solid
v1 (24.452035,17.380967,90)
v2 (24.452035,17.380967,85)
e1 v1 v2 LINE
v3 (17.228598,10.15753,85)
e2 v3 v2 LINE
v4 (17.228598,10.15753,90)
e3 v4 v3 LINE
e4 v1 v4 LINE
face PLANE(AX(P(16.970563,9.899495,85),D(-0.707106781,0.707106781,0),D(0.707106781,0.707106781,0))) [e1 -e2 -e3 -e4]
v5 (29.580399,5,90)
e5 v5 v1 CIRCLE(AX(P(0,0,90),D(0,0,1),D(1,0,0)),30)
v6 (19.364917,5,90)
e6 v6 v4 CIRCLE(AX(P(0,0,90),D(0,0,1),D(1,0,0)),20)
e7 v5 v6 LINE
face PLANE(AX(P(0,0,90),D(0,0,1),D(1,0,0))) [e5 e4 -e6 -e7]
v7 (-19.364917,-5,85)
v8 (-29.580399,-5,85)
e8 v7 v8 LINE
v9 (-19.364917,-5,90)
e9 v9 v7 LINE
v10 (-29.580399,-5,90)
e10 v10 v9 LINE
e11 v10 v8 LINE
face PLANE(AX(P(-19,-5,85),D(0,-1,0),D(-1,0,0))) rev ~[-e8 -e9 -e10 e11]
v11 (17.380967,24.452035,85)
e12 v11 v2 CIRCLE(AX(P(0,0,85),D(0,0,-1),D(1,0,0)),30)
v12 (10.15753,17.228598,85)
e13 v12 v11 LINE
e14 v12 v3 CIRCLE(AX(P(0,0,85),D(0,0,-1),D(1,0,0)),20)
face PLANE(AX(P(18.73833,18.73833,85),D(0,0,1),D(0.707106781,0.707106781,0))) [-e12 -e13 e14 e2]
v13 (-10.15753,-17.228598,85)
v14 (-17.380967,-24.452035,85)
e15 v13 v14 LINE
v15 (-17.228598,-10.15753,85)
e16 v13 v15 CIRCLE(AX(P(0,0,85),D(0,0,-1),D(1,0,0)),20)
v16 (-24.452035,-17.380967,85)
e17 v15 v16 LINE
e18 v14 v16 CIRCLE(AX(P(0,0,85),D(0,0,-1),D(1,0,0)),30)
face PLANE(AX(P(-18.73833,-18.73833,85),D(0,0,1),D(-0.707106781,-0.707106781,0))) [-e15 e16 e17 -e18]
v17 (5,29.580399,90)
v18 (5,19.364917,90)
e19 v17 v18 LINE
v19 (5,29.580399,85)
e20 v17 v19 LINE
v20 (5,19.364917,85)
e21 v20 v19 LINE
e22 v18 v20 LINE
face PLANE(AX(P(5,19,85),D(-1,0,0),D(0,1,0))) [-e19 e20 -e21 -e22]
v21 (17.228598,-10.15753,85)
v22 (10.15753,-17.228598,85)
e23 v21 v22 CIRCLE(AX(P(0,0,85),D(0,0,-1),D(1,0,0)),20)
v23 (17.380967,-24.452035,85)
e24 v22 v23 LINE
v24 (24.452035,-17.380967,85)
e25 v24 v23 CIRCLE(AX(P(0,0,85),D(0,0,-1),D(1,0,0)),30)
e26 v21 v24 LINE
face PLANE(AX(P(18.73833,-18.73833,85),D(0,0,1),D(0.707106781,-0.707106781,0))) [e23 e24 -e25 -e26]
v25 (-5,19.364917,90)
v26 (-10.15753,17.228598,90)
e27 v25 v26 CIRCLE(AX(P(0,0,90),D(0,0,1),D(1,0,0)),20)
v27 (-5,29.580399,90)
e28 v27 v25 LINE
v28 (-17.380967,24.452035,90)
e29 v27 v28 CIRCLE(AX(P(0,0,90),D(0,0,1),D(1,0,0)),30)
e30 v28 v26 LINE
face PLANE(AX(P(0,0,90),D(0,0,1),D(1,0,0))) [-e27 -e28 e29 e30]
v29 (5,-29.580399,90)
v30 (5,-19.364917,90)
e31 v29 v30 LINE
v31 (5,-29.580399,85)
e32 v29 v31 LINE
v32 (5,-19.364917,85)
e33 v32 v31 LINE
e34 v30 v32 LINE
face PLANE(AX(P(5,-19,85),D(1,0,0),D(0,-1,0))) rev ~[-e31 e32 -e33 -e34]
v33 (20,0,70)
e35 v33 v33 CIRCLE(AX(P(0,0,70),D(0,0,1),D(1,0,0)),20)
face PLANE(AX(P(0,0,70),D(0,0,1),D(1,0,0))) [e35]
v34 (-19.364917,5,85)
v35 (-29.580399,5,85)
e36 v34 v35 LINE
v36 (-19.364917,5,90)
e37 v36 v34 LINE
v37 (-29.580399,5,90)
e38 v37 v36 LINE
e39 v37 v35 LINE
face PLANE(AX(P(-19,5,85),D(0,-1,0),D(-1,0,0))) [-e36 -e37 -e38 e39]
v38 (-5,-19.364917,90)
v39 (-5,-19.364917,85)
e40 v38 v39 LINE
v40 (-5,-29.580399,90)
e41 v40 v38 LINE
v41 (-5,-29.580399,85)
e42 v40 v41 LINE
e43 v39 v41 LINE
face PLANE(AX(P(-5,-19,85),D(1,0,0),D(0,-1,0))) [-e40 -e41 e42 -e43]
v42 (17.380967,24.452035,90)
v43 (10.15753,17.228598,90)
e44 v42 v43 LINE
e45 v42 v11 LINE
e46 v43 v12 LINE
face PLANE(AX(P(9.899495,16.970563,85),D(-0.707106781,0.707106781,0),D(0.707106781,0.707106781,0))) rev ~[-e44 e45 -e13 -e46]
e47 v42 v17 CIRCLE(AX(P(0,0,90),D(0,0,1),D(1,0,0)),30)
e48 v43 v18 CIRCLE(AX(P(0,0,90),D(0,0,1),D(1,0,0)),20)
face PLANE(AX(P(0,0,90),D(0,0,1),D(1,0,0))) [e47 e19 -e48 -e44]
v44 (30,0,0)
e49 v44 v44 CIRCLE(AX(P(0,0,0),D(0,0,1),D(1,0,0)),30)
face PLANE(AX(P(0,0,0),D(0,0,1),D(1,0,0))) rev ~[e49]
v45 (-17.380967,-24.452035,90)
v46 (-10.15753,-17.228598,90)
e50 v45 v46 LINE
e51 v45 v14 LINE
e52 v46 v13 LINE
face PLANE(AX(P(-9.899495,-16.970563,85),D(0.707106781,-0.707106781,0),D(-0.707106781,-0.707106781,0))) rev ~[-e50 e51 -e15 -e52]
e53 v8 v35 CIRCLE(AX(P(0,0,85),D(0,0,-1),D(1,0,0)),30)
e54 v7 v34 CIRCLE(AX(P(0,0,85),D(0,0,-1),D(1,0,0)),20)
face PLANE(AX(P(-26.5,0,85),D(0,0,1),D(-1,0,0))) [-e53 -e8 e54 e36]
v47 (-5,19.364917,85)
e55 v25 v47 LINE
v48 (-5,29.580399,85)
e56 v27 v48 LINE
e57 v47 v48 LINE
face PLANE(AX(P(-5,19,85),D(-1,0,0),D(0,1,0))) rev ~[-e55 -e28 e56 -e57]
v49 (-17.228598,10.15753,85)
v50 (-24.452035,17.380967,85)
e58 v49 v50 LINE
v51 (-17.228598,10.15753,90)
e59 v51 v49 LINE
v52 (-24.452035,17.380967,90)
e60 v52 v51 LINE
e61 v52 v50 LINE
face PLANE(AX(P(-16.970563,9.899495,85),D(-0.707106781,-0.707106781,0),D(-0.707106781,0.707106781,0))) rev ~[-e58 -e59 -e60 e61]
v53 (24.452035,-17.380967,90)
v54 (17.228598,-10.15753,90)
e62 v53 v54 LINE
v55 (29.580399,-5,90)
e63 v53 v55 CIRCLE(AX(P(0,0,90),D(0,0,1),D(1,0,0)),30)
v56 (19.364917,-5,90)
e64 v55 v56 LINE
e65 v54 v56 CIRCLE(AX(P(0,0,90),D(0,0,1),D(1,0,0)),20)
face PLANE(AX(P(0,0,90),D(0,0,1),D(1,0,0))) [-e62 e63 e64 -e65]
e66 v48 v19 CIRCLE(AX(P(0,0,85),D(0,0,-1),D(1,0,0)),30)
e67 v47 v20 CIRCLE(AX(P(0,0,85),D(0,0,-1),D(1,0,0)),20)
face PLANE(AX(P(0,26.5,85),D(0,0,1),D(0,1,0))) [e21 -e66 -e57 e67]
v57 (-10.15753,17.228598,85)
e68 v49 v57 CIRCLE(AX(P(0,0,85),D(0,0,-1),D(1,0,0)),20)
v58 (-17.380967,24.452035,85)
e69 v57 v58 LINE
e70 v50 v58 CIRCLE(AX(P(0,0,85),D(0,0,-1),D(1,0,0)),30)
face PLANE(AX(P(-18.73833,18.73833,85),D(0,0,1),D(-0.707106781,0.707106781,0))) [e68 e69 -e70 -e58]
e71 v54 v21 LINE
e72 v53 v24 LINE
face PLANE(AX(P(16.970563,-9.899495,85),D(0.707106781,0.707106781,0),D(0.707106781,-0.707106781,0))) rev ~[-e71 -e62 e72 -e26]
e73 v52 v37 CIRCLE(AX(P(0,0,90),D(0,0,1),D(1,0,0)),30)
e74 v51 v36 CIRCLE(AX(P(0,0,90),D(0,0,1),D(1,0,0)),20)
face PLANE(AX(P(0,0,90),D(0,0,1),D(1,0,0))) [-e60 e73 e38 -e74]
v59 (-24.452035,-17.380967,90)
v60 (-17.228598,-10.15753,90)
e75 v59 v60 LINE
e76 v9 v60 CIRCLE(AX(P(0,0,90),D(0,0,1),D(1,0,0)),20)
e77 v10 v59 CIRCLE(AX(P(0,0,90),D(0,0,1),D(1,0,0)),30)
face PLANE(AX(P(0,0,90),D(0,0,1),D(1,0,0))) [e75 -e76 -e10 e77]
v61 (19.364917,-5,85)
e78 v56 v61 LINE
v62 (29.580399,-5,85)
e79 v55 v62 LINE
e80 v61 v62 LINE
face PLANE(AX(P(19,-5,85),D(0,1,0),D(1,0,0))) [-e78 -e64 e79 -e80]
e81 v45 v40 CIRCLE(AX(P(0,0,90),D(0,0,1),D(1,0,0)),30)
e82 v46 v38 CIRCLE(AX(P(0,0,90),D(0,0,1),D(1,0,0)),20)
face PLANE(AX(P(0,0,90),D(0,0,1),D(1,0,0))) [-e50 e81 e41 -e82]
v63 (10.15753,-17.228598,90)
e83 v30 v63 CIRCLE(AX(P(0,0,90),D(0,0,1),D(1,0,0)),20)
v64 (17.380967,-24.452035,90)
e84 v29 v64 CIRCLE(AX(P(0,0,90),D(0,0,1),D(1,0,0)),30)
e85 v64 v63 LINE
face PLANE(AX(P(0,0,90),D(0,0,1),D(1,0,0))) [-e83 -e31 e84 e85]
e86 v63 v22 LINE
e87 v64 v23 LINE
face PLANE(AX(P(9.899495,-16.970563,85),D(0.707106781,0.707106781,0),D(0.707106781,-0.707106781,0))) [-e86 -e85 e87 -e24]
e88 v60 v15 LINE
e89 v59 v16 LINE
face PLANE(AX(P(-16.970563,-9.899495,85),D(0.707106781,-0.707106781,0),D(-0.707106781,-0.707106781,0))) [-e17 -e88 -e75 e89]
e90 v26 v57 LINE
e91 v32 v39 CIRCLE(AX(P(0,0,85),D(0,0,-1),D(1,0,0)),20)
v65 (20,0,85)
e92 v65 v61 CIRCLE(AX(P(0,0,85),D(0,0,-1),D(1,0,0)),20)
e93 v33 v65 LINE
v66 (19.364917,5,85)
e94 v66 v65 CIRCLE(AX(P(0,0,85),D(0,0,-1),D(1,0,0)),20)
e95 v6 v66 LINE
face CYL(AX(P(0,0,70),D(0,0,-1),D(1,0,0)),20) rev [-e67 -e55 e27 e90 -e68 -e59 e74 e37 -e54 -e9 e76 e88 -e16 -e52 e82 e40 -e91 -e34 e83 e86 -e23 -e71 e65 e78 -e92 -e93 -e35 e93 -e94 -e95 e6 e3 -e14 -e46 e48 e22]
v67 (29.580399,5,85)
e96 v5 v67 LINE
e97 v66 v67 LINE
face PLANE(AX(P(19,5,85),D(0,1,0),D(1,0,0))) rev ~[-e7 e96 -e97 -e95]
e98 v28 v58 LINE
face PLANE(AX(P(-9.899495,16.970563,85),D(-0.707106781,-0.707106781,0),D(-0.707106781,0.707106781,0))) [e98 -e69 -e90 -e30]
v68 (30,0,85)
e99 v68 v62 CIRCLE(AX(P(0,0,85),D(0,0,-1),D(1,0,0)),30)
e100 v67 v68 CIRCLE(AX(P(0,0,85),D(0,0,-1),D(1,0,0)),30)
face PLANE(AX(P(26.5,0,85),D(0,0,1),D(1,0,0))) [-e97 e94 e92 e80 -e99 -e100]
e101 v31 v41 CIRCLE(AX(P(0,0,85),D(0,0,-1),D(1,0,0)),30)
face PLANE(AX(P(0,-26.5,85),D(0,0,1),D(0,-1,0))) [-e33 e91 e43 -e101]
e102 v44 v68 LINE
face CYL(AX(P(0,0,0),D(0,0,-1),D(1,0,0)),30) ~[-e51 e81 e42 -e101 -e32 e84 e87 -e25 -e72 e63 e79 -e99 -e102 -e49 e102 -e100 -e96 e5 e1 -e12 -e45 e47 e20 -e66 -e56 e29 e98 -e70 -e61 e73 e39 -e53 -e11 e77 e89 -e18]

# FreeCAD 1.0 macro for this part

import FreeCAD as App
import Part
import Sketcher
from FreeCAD import Vector


def add_polygon(sketch, points):
    """Adds a closed chain of lines whose ends are joined by coincident constraints."""
    first, n = sketch.GeometryCount, len(points)
    for a, b in zip(points, points[1:] + points[:1]):
        sketch.addGeometry(Part.LineSegment(App.Vector(*a, 0), App.Vector(*b, 0)), False)
    for i in range(n):
        sketch.addConstraint(Sketcher.Constraint("Coincident", first + i, 2, first + (i + 1) % n, 1))

doc = App.newDocument("Part")
body = doc.addObject("PartDesign::Body", "Body")

sketch1 = doc.addObject("Sketcher::SketchObject", "Sketch")
body.addObject(sketch1)
sketch1.AttachmentSupport = (doc.XY_Plane, [""])
sketch1.MapMode = "FlatFace"
sketch1.AttachmentOffset = App.Placement(Vector(0, 0, 85), App.Rotation())
add_polygon(sketch1, [(19, 5), (19, -5), (34, -5), (34, 5)])
sketch1.addConstraint([
    Sketcher.Constraint("Vertical", 0),
    Sketcher.Constraint("Horizontal", 1),
    Sketcher.Constraint("Vertical", 2),
    Sketcher.Constraint("Horizontal", 3),
    Sketcher.Constraint("DistanceX", 1, 1, 1, 2, 15.0),
    Sketcher.Constraint("DistanceY", 0, 2, 0, 1, 10.0),
    Sketcher.Constraint("DistanceX", -1, 1, 0, 2, 19.0),
    Sketcher.Constraint("DistanceY", 0, 2, -1, 1, 5.0),
])
pad1 = doc.addObject("PartDesign::Pad", "Pad")
body.addObject(pad1)
pad1.Profile = sketch1
pad1.Length = 10
body2 = doc.addObject("PartDesign::Body", "Body001")
body2.AllowCompound = True
doc.recompute()

body2.BaseFeature = body
doc.recompute()

body3 = doc.addObject("PartDesign::Body", "Body002")
body3.BaseFeature = body
body3.Placement = App.Placement(Vector(0, 0, 0), App.Rotation(Vector(0, 0, 1), 45))
boolean = doc.addObject("PartDesign::Boolean", "Boolean")
body2.addObject(boolean)
boolean.Type = "Fuse"
boolean.addObjects([body3])
doc.recompute()

body4 = doc.addObject("PartDesign::Body", "Body003")
body4.BaseFeature = body
body4.Placement = App.Placement(Vector(0, 0, 0), App.Rotation(Vector(0, 0, 1), 90))
boolean2 = doc.addObject("PartDesign::Boolean", "Boolean001")
body2.addObject(boolean2)
boolean2.Type = "Fuse"
boolean2.addObjects([body4])
doc.recompute()

body5 = doc.addObject("PartDesign::Body", "Body004")
body5.BaseFeature = body
body5.Placement = App.Placement(Vector(0, 0, 0), App.Rotation(Vector(0, 0, 1), 135))
boolean3 = doc.addObject("PartDesign::Boolean", "Boolean002")
body2.addObject(boolean3)
boolean3.Type = "Fuse"
boolean3.addObjects([body5])
doc.recompute()

body6 = doc.addObject("PartDesign::Body", "Body005")
body6.BaseFeature = body
body6.Placement = App.Placement(Vector(0, 0, 0), App.Rotation(Vector(0, 0, 1), 180))
boolean4 = doc.addObject("PartDesign::Boolean", "Boolean003")
body2.addObject(boolean4)
boolean4.Type = "Fuse"
boolean4.addObjects([body6])
doc.recompute()

body7 = doc.addObject("PartDesign::Body", "Body006")
body7.BaseFeature = body
body7.Placement = App.Placement(Vector(0, 0, 0), App.Rotation(Vector(0, 0, 1), 225))
boolean5 = doc.addObject("PartDesign::Boolean", "Boolean004")
body2.addObject(boolean5)
boolean5.Type = "Fuse"
boolean5.addObjects([body7])
doc.recompute()

body8 = doc.addObject("PartDesign::Body", "Body007")
body8.BaseFeature = body
body8.Placement = App.Placement(Vector(0, 0, 0), App.Rotation(Vector(0, 0, 1), 270))
boolean6 = doc.addObject("PartDesign::Boolean", "Boolean005")
body2.addObject(boolean6)
boolean6.Type = "Fuse"
boolean6.addObjects([body8])
doc.recompute()

body.Placement = App.Placement(Vector(0, 0, 0), App.Rotation(Vector(0, 0, 1), 315))
boolean7 = doc.addObject("PartDesign::Boolean", "Boolean006")
body2.addObject(boolean7)
boolean7.Type = "Fuse"
boolean7.addObjects([body])
body9 = doc.addObject("PartDesign::Body", "Body008")

sketch2 = doc.addObject("Sketcher::SketchObject", "Sketch001")
body9.addObject(sketch2)
sketch2.AttachmentSupport = (doc.getObject("XY_Plane008"), [""])
sketch2.MapMode = "FlatFace"
sketch2.AttachmentOffset = App.Placement(Vector(0, 0, 70), App.Rotation())
sketch2.addGeometry(Part.Circle(Vector(0, 0, 0), Vector(0, 0, 1), 20), False)
sketch2.addConstraint([
    Sketcher.Constraint("Coincident", 0, 3, -1, 1),
    Sketcher.Constraint("Diameter", 0, 40.0),
])
pad2 = doc.addObject("PartDesign::Pad", "Pad001")
body9.addObject(pad2)
pad2.Profile = sketch2
pad2.Length = 20
body10 = doc.addObject("PartDesign::Body", "Body009")

sketch3 = doc.addObject("Sketcher::SketchObject", "Sketch002")
body10.addObject(sketch3)
sketch3.AttachmentSupport = (doc.getObject("XY_Plane009"), [""])
sketch3.MapMode = "FlatFace"
sketch3.addGeometry(Part.Circle(Vector(0, 0, 0), Vector(0, 0, 1), 30), False)
sketch3.addConstraint([
    Sketcher.Constraint("Coincident", 0, 3, -1, 1),
    Sketcher.Constraint("Diameter", 0, 60.0),
])
pad3 = doc.addObject("PartDesign::Pad", "Pad002")
body10.addObject(pad3)
pad3.Profile = sketch3
pad3.Length = 90
doc.recompute()

boolean8 = doc.addObject("PartDesign::Boolean", "Boolean007")
body10.addObject(boolean8)
boolean8.Type = "Cut"
boolean8.addObjects([body9])
doc.recompute()

boolean9 = doc.addObject("PartDesign::Boolean", "Boolean008")
body10.addObject(boolean9)
boolean9.Type = "Cut"
boolean9.addObjects([body2])

doc.recompute()
